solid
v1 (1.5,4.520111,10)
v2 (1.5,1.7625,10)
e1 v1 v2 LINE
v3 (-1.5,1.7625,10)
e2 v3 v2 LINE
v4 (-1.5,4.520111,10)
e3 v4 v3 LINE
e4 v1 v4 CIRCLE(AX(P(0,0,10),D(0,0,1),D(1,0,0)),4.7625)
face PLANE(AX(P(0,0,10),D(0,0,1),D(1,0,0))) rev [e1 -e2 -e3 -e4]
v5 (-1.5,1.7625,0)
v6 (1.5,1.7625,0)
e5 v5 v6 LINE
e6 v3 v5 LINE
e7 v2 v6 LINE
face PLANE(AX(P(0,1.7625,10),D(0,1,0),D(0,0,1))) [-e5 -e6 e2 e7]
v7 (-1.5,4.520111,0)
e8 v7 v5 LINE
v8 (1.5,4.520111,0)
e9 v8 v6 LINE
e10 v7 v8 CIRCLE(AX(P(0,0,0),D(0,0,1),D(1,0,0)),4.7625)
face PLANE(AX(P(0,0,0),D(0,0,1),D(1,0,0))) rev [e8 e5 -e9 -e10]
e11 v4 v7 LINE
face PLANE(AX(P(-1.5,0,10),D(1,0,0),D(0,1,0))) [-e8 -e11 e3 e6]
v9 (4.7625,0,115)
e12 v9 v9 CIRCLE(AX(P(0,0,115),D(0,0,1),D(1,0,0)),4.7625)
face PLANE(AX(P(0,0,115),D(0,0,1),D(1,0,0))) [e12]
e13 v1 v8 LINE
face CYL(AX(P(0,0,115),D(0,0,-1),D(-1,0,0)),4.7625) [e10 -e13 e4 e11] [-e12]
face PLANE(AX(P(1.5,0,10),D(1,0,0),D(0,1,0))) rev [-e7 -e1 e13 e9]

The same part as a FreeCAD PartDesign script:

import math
import FreeCAD as App
import Part
import Sketcher
Q = App.Units.Quantity

doc = App.newDocument("Part")
params = doc.addObject("Spreadsheet::Sheet", "Params")
for row, (alias, value) in enumerate([
    ("pad1_length", "115 mm"),
    ("sketch2_width", "3 mm"),
    ("sketch2_height", "6 mm"),
    ("pocket1_length", "10 mm"),
], start=1):
    params.set(f"A{row}", alias)
    params.set(f"B{row}", "=" + value)
    params.setAlias(f"B{row}", alias)

body = doc.addObject("PartDesign::Body", "Body")

# Sketch on XY plane
sketch1 = body.newObject("Sketcher::SketchObject", "Sketch")
sketch1.AttachmentSupport = (doc.getObject("XY_Plane"), [""])
sketch1.MapMode = "FlatFace"
sketch1.addGeometry([
    Part.ArcOfCircle(Part.Circle(App.Vector(0, 0, 0), App.Vector(0, 0, 1), 4.8), math.radians(72), math.radians(108)),
    Part.ArcOfCircle(Part.Circle(App.Vector(0, 0, 0), App.Vector(0, 0, 1), 4.8), math.radians(108), math.radians(360)),
    Part.ArcOfCircle(Part.Circle(App.Vector(0, 0, 0), App.Vector(0, 0, 1), 4.8), math.radians(0), math.radians(72)),
], False)
sketch1.addConstraint([
    Sketcher.Constraint("Tangent", 0, 2, 1, 1),
    Sketcher.Constraint("Tangent", 1, 2, 2, 1),
    Sketcher.Constraint("Tangent", 2, 2, 0, 1),
    Sketcher.Constraint("Coincident", 0, 3, -1, 1),
    Sketcher.Constraint("PointOnObject", 1, 2, -1),
    Sketcher.Constraint("Horizontal", 0, 2, 2, 2),
    Sketcher.Constraint("DistanceX", 0, 2, 2, 2, Q("3 mm")),
    Sketcher.Constraint("Radius", 0, Q("4.7625 mm")),
])
pad1 = body.newObject("PartDesign::Pad", "Pad")
pad1.Profile = sketch1
pad1.setExpression("Length", "Params.pad1_length")

# Sketch on XY plane
sketch2 = body.newObject("Sketcher::SketchObject", "Sketch001")
sketch2.AttachmentSupport = (doc.getObject("XY_Plane"), [""])
sketch2.MapMode = "FlatFace"
sketch2.addGeometry([
    Part.LineSegment(App.Vector(-1.5, 7.8, 0), App.Vector(-1.5, 1.8, 0)),
    Part.LineSegment(App.Vector(-1.5, 1.8, 0), App.Vector(1.5, 1.8, 0)),
    Part.LineSegment(App.Vector(1.5, 1.8, 0), App.Vector(1.5, 7.8, 0)),
    Part.LineSegment(App.Vector(1.5, 7.8, 0), App.Vector(-1.5, 7.8, 0)),
], False)
sketch2.addConstraint([
    Sketcher.Constraint("Coincident", 0, 2, 1, 1),
    Sketcher.Constraint("Coincident", 1, 2, 2, 1),
    Sketcher.Constraint("Coincident", 2, 2, 3, 1),
    Sketcher.Constraint("Coincident", 3, 2, 0, 1),
    Sketcher.Constraint("Vertical", 0),
    Sketcher.Constraint("Horizontal", 1),
    Sketcher.Constraint("Vertical", 2),
    Sketcher.Constraint("Horizontal", 3),
    Sketcher.Constraint("DistanceX", 1, 1, 1, 2, Q("3 mm")),
    Sketcher.Constraint("DistanceY", 0, 2, 0, 1, Q("6 mm")),
    Sketcher.Constraint("DistanceX", 0, 2, -1, 1, Q("1.5 mm")),
    Sketcher.Constraint("DistanceY", -1, 1, 0, 2, Q("1.7625 mm")),
])
sketch2.setExpression("Constraints[8]", "Params.sketch2_width")
sketch2.setExpression("Constraints[9]", "Params.sketch2_height")
pocket1 = body.newObject("PartDesign::Pocket", "Pocket")
pocket1.Profile = sketch2
pocket1.setExpression("Length", "Params.pocket1_length")
pocket1.Reversed = True

doc.recompute()
